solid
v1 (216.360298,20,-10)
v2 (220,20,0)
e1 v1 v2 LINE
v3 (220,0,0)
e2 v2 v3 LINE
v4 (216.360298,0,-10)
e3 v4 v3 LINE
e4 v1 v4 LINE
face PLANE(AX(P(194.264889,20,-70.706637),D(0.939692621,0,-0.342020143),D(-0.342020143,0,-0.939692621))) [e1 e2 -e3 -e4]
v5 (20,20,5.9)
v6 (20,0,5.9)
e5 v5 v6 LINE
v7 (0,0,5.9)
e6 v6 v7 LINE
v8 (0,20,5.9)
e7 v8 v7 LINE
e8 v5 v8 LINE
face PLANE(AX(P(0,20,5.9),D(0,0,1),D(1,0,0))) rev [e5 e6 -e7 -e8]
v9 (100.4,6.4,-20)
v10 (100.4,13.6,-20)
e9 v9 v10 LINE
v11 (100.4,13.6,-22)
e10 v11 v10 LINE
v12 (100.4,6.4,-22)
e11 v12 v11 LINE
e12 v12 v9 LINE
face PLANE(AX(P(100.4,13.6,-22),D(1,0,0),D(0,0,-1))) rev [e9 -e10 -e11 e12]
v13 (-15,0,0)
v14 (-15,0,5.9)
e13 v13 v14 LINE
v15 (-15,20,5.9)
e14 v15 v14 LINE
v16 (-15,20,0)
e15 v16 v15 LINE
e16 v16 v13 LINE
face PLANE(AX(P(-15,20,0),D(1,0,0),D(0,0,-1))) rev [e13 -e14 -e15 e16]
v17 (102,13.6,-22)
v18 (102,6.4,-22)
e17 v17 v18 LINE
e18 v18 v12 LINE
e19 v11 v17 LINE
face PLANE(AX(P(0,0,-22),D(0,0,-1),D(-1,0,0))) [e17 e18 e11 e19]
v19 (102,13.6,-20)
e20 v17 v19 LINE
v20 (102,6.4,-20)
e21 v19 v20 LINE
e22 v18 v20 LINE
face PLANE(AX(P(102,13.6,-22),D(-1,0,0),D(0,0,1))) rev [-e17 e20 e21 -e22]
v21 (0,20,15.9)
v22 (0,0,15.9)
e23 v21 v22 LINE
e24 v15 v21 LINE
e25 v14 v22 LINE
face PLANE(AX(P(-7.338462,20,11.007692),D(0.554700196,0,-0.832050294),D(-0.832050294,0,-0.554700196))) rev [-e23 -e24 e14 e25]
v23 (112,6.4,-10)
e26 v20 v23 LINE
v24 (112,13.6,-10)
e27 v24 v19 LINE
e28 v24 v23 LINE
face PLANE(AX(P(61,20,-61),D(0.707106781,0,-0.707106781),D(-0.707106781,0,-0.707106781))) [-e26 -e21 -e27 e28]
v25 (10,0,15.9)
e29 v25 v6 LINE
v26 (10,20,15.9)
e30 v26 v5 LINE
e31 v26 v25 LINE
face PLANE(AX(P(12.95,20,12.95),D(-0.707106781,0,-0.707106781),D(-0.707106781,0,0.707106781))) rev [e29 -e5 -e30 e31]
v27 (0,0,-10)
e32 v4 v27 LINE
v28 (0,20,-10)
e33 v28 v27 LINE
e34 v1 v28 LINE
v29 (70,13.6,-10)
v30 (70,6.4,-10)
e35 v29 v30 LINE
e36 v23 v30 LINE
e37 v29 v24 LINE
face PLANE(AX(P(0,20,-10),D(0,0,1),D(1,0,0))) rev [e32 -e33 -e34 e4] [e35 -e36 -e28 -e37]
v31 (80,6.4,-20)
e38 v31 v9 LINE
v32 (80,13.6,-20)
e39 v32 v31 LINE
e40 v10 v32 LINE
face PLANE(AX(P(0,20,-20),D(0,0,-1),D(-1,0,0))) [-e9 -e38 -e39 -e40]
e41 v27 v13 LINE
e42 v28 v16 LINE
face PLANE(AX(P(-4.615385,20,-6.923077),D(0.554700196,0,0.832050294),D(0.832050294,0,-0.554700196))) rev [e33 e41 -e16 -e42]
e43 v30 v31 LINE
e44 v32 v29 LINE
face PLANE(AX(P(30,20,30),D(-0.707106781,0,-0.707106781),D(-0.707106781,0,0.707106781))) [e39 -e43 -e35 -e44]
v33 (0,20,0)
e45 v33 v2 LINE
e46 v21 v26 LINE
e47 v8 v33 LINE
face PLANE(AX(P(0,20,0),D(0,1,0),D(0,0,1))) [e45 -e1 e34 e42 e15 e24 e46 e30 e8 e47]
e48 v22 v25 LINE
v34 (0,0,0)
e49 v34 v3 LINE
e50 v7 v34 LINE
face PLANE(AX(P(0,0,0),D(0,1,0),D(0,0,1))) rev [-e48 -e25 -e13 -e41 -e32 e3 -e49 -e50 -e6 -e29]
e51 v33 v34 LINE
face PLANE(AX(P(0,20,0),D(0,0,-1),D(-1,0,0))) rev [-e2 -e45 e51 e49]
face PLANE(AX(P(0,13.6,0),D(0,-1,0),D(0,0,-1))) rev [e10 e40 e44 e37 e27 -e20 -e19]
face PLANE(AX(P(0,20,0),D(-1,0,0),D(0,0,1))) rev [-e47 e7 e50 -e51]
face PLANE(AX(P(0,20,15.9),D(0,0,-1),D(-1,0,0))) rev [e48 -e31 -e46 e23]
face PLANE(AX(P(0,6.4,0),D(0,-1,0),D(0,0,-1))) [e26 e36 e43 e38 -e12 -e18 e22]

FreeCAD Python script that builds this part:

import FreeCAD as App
import Part
import Sketcher
from FreeCAD import Vector
Q = App.Units.Quantity

doc = App.newDocument("Part")
params = doc.addObject("Spreadsheet::Sheet", "Params")
for row, (alias, value) in enumerate([
    ("sketch1_width", "20 mm"),
    ("sketch1_width2", "220 mm"),
    ("sketch1_width3", "22 mm"),
    ("sketch1_width4", "70 mm"),
    ("sketch1_width5", "10 mm"),
    ("pad1_length", "20 mm"),
    ("sketch2_width", "42 mm"),
    ("sketch2_width2", "22 mm"),
    ("pocket1_length", "6.4 mm"),
    ("sketch3_width", "42 mm"),
    ("sketch3_width2", "22 mm"),
    ("pocket2_length", "6.4 mm"),
    ("sketch4_width", "1.6 mm"),
    ("sketch4_height", "7.2 mm"),
    ("pad2_length", "2 mm"),
], start=1):
    params.set(f"A{row}", alias)
    params.set(f"B{row}", "=" + value)
    params.setAlias(f"B{row}", alias)

body = doc.addObject("PartDesign::Body", "Body")

sketch1 = body.newObject("Sketcher::SketchObject", "Sketch")
sketch1.AttachmentSupport = (doc.getObject("XZ_Plane"), [""])
sketch1.MapMode = "FlatFace"
sketch1.addGeometry([
    Part.LineSegment(Vector(20, 6, 0), Vector(0, 6, 0)),
    Part.LineSegment(Vector(0, 6, 0), Vector(0, 0, 0)),
    Part.LineSegment(Vector(0, 0, 0), Vector(220, 0, 0)),
    Part.LineSegment(Vector(220, 0, 0), Vector(216, -10, 0)),
    Part.LineSegment(Vector(216, -10, 0), Vector(112, -10, 0)),
    Part.LineSegment(Vector(112, -10, 0), Vector(102, -20, 0)),
    Part.LineSegment(Vector(102, -20, 0), Vector(80, -20, 0)),
    Part.LineSegment(Vector(80, -20, 0), Vector(70, -10, 0)),
    Part.LineSegment(Vector(70, -10, 0), Vector(0, -10, 0)),
    Part.LineSegment(Vector(0, -10, 0), Vector(-15, 0, 0)),
    Part.LineSegment(Vector(-15, 0, 0), Vector(-15, 6, 0)),
    Part.LineSegment(Vector(-15, 6, 0), Vector(0, 16, 0)),
    Part.LineSegment(Vector(0, 16, 0), Vector(10, 16, 0)),
    Part.LineSegment(Vector(10, 16, 0), Vector(20, 6, 0)),
], False)
sketch1.addConstraint([
    Sketcher.Constraint("Coincident", 0, 2, 1, 1),
    Sketcher.Constraint("Coincident", 1, 2, 2, 1),
    Sketcher.Constraint("Coincident", 2, 2, 3, 1),
    Sketcher.Constraint("Coincident", 3, 2, 4, 1),
    Sketcher.Constraint("Coincident", 4, 2, 5, 1),
    Sketcher.Constraint("Coincident", 5, 2, 6, 1),
    Sketcher.Constraint("Coincident", 6, 2, 7, 1),
    Sketcher.Constraint("Coincident", 7, 2, 8, 1),
    Sketcher.Constraint("Coincident", 8, 2, 9, 1),
    Sketcher.Constraint("Coincident", 9, 2, 10, 1),
    Sketcher.Constraint("Coincident", 10, 2, 11, 1),
    Sketcher.Constraint("Coincident", 11, 2, 12, 1),
    Sketcher.Constraint("Coincident", 12, 2, 13, 1),
    Sketcher.Constraint("Coincident", 13, 2, 0, 1),
    Sketcher.Constraint("Horizontal", 0),
    Sketcher.Constraint("Vertical", 1),
    Sketcher.Constraint("Horizontal", 2),
    Sketcher.Constraint("Horizontal", 4),
    Sketcher.Constraint("Horizontal", 6),
    Sketcher.Constraint("Horizontal", 8),
    Sketcher.Constraint("Vertical", 10),
    Sketcher.Constraint("Horizontal", 12),
    Sketcher.Constraint("Coincident", 1, 2, -1, 1),
    Sketcher.Constraint("PointOnObject", 8, 2, -2),
    Sketcher.Constraint("PointOnObject", 9, 2, -1),
    Sketcher.Constraint("PointOnObject", 11, 2, -2),
    Sketcher.Constraint("Perpendicular", 5, 7),
    Sketcher.Constraint("Parallel", 7, 13),
    Sketcher.Constraint("Horizontal", 4, 2, 7, 2),
    Sketcher.Constraint("Horizontal", 0, 2, 10, 2),
    Sketcher.Constraint("Equal", 5, 7),
    Sketcher.Constraint("Equal", 9, 11),
    Sketcher.Constraint("Equal", 7, 13),
    Sketcher.Constraint("DistanceX", 0, 2, 0, 1, Q("20 mm")),
    Sketcher.Constraint("DistanceX", 2, 1, 2, 2, Q("220 mm")),
    Sketcher.Constraint("DistanceX", 6, 2, 6, 1, Q("22 mm")),
    Sketcher.Constraint("DistanceX", 8, 2, 8, 1, Q("70 mm")),
    Sketcher.Constraint("DistanceX", 12, 1, 12, 2, Q("10 mm")),
    Sketcher.Constraint("Angle", 3, Q("-110 deg")),
    Sketcher.Constraint("DistanceY", 1, 2, 1, 1, Q("5.9 mm")),
    Sketcher.Constraint("DistanceX", 9, 2, -1, 1, Q("15 mm")),
])
sketch1.setExpression("Constraints[33]", "Params.sketch1_width")
sketch1.setExpression("Constraints[34]", "Params.sketch1_width2")
sketch1.setExpression("Constraints[35]", "Params.sketch1_width3")
sketch1.setExpression("Constraints[36]", "Params.sketch1_width4")
sketch1.setExpression("Constraints[37]", "Params.sketch1_width5")
pad1 = body.newObject("PartDesign::Pad", "Pad")
pad1.Profile = sketch1
pad1.setExpression("Length", "Params.pad1_length")
pad1.Reversed = True

sketch2 = body.newObject("Sketcher::SketchObject", "Sketch001")
sketch2.AttachmentSupport = (doc.getObject("XZ_Plane"), [""])
sketch2.MapMode = "FlatFace"
sketch2.AttachmentOffset = App.Placement(Vector(0, 0, -20), App.Rotation())
sketch2.addGeometry([
    Part.LineSegment(Vector(70, -10, 0), Vector(112, -10, 0)),
    Part.LineSegment(Vector(112, -10, 0), Vector(102, -20, 0)),
    Part.LineSegment(Vector(102, -20, 0), Vector(80, -20, 0)),
    Part.LineSegment(Vector(80, -20, 0), Vector(70, -10, 0)),
], False)
sketch2.addConstraint([
    Sketcher.Constraint("Coincident", 0, 2, 1, 1),
    Sketcher.Constraint("Coincident", 1, 2, 2, 1),
    Sketcher.Constraint("Coincident", 2, 2, 3, 1),
    Sketcher.Constraint("Coincident", 3, 2, 0, 1),
    Sketcher.Constraint("Horizontal", 0),
    Sketcher.Constraint("Horizontal", 2),
    Sketcher.Constraint("Perpendicular", 1, 3),
    Sketcher.Constraint("Equal", 1, 3),
    Sketcher.Constraint("DistanceX", 0, 1, 0, 2, Q("42 mm")),
    Sketcher.Constraint("DistanceX", 2, 2, 2, 1, Q("22 mm")),
    Sketcher.Constraint("DistanceX", -1, 1, 0, 2, Q("112 mm")),
    Sketcher.Constraint("DistanceY", 0, 2, -1, 1, Q("10 mm")),
])
sketch2.setExpression("Constraints[8]", "Params.sketch2_width")
sketch2.setExpression("Constraints[9]", "Params.sketch2_width2")
pocket1 = body.newObject("PartDesign::Pocket", "Pocket")
pocket1.Profile = sketch2
pocket1.setExpression("Length", "Params.pocket1_length")
pocket1.Reversed = True

sketch3 = body.newObject("Sketcher::SketchObject", "Sketch002")
sketch3.AttachmentSupport = (doc.getObject("XZ_Plane"), [""])
sketch3.MapMode = "FlatFace"
sketch3.addGeometry([
    Part.LineSegment(Vector(112, -10, 0), Vector(70, -10, 0)),
    Part.LineSegment(Vector(70, -10, 0), Vector(80, -20, 0)),
    Part.LineSegment(Vector(80, -20, 0), Vector(102, -20, 0)),
    Part.LineSegment(Vector(102, -20, 0), Vector(112, -10, 0)),
], False)
sketch3.addConstraint([
    Sketcher.Constraint("Coincident", 0, 2, 1, 1),
    Sketcher.Constraint("Coincident", 1, 2, 2, 1),
    Sketcher.Constraint("Coincident", 2, 2, 3, 1),
    Sketcher.Constraint("Coincident", 3, 2, 0, 1),
    Sketcher.Constraint("Horizontal", 0),
    Sketcher.Constraint("Horizontal", 2),
    Sketcher.Constraint("Perpendicular", 1, 3),
    Sketcher.Constraint("Equal", 1, 3),
    Sketcher.Constraint("DistanceX", 0, 2, 0, 1, Q("42 mm")),
    Sketcher.Constraint("DistanceX", 2, 1, 2, 2, Q("22 mm")),
    Sketcher.Constraint("DistanceX", -1, 1, 0, 2, Q("70 mm")),
    Sketcher.Constraint("DistanceY", 0, 2, -1, 1, Q("10 mm")),
])
sketch3.setExpression("Constraints[8]", "Params.sketch3_width")
sketch3.setExpression("Constraints[9]", "Params.sketch3_width2")
pocket2 = body.newObject("PartDesign::Pocket", "Pocket001")
pocket2.Profile = sketch3
pocket2.setExpression("Length", "Params.pocket2_length")

sketch4 = body.newObject("Sketcher::SketchObject", "Sketch003")
sketch4.AttachmentSupport = (doc.getObject("XY_Plane"), [""])
sketch4.MapMode = "FlatFace"
sketch4.AttachmentOffset = App.Placement(Vector(0, 0, -20), App.Rotation())
sketch4.addGeometry([
    Part.LineSegment(Vector(102, 13.6, 0), Vector(102, 6.4, 0)),
    Part.LineSegment(Vector(102, 6.4, 0), Vector(100.4, 6.4, 0)),
    Part.LineSegment(Vector(100.4, 6.4, 0), Vector(100.4, 13.6, 0)),
    Part.LineSegment(Vector(100.4, 13.6, 0), Vector(102, 13.6, 0)),
], False)
sketch4.addConstraint([
    Sketcher.Constraint("Coincident", 0, 2, 1, 1),
    Sketcher.Constraint("Coincident", 1, 2, 2, 1),
    Sketcher.Constraint("Coincident", 2, 2, 3, 1),
    Sketcher.Constraint("Coincident", 3, 2, 0, 1),
    Sketcher.Constraint("Vertical", 0),
    Sketcher.Constraint("Horizontal", 1),
    Sketcher.Constraint("Vertical", 2),
    Sketcher.Constraint("Horizontal", 3),
    Sketcher.Constraint("DistanceX", 1, 2, 1, 1, Q("1.6 mm")),
    Sketcher.Constraint("DistanceY", 0, 2, 0, 1, Q("7.2 mm")),
    Sketcher.Constraint("DistanceX", -1, 1, 0, 2, Q("102 mm")),
    Sketcher.Constraint("DistanceY", -1, 1, 0, 2, Q("6.4 mm")),
])
sketch4.setExpression("Constraints[8]", "Params.sketch4_width")
sketch4.setExpression("Constraints[9]", "Params.sketch4_height")
pad2 = body.newObject("PartDesign::Pad", "Pad001")
pad2.Profile = sketch4
pad2.setExpression("Length", "Params.pad2_length")
pad2.Reversed = True

doc.recompute()
